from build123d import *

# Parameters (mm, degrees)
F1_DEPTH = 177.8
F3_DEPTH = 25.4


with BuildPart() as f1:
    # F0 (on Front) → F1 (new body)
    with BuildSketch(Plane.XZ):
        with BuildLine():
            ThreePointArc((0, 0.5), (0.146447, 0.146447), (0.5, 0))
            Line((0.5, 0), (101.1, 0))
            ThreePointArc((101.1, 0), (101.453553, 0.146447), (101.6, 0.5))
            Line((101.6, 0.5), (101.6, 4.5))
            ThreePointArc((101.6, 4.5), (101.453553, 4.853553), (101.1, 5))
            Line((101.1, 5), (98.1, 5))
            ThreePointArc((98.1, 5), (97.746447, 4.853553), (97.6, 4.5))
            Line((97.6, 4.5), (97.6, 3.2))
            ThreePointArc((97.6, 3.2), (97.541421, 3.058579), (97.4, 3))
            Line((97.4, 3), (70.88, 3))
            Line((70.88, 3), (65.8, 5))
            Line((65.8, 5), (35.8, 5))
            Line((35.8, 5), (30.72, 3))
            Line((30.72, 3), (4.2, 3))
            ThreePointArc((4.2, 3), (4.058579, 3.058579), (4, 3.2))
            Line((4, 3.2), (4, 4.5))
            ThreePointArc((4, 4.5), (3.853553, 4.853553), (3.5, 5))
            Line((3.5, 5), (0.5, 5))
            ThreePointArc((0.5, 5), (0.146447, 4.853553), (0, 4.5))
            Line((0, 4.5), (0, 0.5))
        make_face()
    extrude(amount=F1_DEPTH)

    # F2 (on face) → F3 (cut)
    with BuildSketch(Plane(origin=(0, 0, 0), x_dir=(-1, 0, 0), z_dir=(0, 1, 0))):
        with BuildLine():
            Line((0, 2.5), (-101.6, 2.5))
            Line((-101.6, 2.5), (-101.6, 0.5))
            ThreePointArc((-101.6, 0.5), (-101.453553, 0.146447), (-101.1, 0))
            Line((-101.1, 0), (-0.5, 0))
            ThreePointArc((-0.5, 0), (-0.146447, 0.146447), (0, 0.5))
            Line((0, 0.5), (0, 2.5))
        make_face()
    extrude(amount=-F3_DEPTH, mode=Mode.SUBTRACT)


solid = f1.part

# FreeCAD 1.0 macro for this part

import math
import FreeCAD as App
import Part
import Sketcher
from FreeCAD import Vector
Q = App.Units.Quantity

doc = App.newDocument("Part")
body = doc.addObject("PartDesign::Body", "Body")

sketch1 = body.newObject("Sketcher::SketchObject", "Sketch")
sketch1.AttachmentSupport = (doc.getObject("XZ_Plane"), [""])
sketch1.MapMode = "FlatFace"
sketch1.addGeometry([
    Part.ArcOfCircle(Part.Circle(Vector(0.5, 0.5, 0), Vector(0, 0, 1), 0.5), math.radians(-180), math.radians(-90)),
    Part.LineSegment(Vector(0.5, 0, 0), Vector(101.1, 0, 0)),
    Part.ArcOfCircle(Part.Circle(Vector(101.1, 0.5, 0), Vector(0, 0, 1), 0.5), math.radians(-90), math.radians(0)),
    Part.LineSegment(Vector(101.6, 0.5, 0), Vector(101.6, 4.5, 0)),
    Part.ArcOfCircle(Part.Circle(Vector(101.1, 4.5, 0), Vector(0, 0, 1), 0.5), math.radians(0), math.radians(90)),
    Part.LineSegment(Vector(101.1, 5, 0), Vector(98.1, 5, 0)),
    Part.ArcOfCircle(Part.Circle(Vector(98.1, 4.5, 0), Vector(0, 0, 1), 0.5), math.radians(90), math.radians(180)),
    Part.LineSegment(Vector(97.6, 4.5, 0), Vector(97.6, 3.2, 0)),
    Part.ArcOfCircle(Part.Circle(Vector(97.4, 3.2, 0), Vector(0, 0, 1), 0.2), math.radians(-90), math.radians(0)),
    Part.LineSegment(Vector(97.4, 3, 0), Vector(70.88, 3, 0)),
    Part.LineSegment(Vector(70.88, 3, 0), Vector(65.8, 5, 0)),
    Part.LineSegment(Vector(65.8, 5, 0), Vector(35.8, 5, 0)),
    Part.LineSegment(Vector(35.8, 5, 0), Vector(30.72, 3, 0)),
    Part.LineSegment(Vector(30.72, 3, 0), Vector(4.2, 3, 0)),
    Part.ArcOfCircle(Part.Circle(Vector(4.2, 3.2, 0), Vector(0, 0, 1), 0.2), math.radians(-180), math.radians(-90)),
    Part.LineSegment(Vector(4, 3.2, 0), Vector(4, 4.5, 0)),
    Part.ArcOfCircle(Part.Circle(Vector(3.5, 4.5, 0), Vector(0, 0, 1), 0.5), math.radians(0), math.radians(90)),
    Part.LineSegment(Vector(3.5, 5, 0), Vector(0.5, 5, 0)),
    Part.ArcOfCircle(Part.Circle(Vector(0.5, 4.5, 0), Vector(0, 0, 1), 0.5), math.radians(90), math.radians(180)),
    Part.LineSegment(Vector(0, 4.5, 0), Vector(0, 0.5, 0)),
], False)
sketch1.addConstraint([
    Sketcher.Constraint("Coincident", 0, 2, 1, 1),
    Sketcher.Constraint("Coincident", 1, 2, 2, 1),
    Sketcher.Constraint("Coincident", 2, 2, 3, 1),
    Sketcher.Constraint("Coincident", 3, 2, 4, 1),
    Sketcher.Constraint("Coincident", 4, 2, 5, 1),
    Sketcher.Constraint("Coincident", 5, 2, 6, 1),
    Sketcher.Constraint("Coincident", 6, 2, 7, 1),
    Sketcher.Constraint("Coincident", 7, 2, 8, 2),
    Sketcher.Constraint("Coincident", 8, 1, 9, 1),
    Sketcher.Constraint("Coincident", 9, 2, 10, 1),
    Sketcher.Constraint("Coincident", 10, 2, 11, 1),
    Sketcher.Constraint("Coincident", 11, 2, 12, 1),
    Sketcher.Constraint("Coincident", 12, 2, 13, 1),
    Sketcher.Constraint("Coincident", 13, 2, 14, 2),
    Sketcher.Constraint("Coincident", 14, 1, 15, 1),
    Sketcher.Constraint("Coincident", 15, 2, 16, 1),
    Sketcher.Constraint("Coincident", 16, 2, 17, 1),
    Sketcher.Constraint("Coincident", 17, 2, 18, 1),
    Sketcher.Constraint("Coincident", 18, 2, 19, 1),
    Sketcher.Constraint("Coincident", 19, 2, 0, 1),
    Sketcher.Constraint("Horizontal", 1),
    Sketcher.Constraint("Vertical", 3),
    Sketcher.Constraint("Horizontal", 5),
    Sketcher.Constraint("Vertical", 7),
    Sketcher.Constraint("Horizontal", 9),
    Sketcher.Constraint("Horizontal", 11),
    Sketcher.Constraint("Horizontal", 13),
    Sketcher.Constraint("Vertical", 15),
    Sketcher.Constraint("Horizontal", 17),
    Sketcher.Constraint("Vertical", 19),
    Sketcher.Constraint("Equal", 0, 2),
    Sketcher.Constraint("Equal", 2, 4),
    Sketcher.Constraint("Equal", 4, 6),
    Sketcher.Constraint("Equal", 8, 14),
    Sketcher.Constraint("Equal", 6, 16),
    Sketcher.Constraint("Equal", 16, 18),
    Sketcher.Constraint("PointOnObject", 0, 2, -1),
    Sketcher.Constraint("PointOnObject", 18, 2, -2),
    Sketcher.Constraint("Horizontal", 8, 3, 14, 3),
    Sketcher.Constraint("Horizontal", 6, 3, 16, 3),
    Sketcher.Constraint("Horizontal", 0, 3, 2, 2),
    Sketcher.Constraint("Horizontal", 18, 3, 3, 2),
    Sketcher.Constraint("Horizontal", 3, 2, 6, 2),
    Sketcher.Constraint("Horizontal", 14, 3, 7, 2),
    Sketcher.Constraint("Horizontal", 5, 2, 10, 2),
    Sketcher.Constraint("Horizontal", 7, 2, 14, 1),
    Sketcher.Constraint("Horizontal", 6, 2, 15, 2),
    Sketcher.Constraint("Horizontal", 15, 2, 18, 2),
    Sketcher.Constraint("Horizontal", 2, 2, 19, 2),
    Sketcher.Constraint("Vertical", 18, 3, 0, 2),
    Sketcher.Constraint("Vertical", 4, 3, 1, 2),
    Sketcher.Constraint("Vertical", 1, 2, 4, 2),
    Sketcher.Constraint("Vertical", 6, 3, 5, 2),
    Sketcher.Constraint("Vertical", 14, 3, 13, 2),
    Sketcher.Constraint("Vertical", 0, 2, 17, 2),
    Sketcher.Constraint("Equal", 9, 13),
    Sketcher.Constraint("Equal", 5, 17),
    Sketcher.Constraint("Equal", 10, 12),
    Sketcher.Constraint("Radius", 0, Q("0.500001 mm")),
    Sketcher.Constraint("Radius", 8, Q("0.200001 mm")),
    Sketcher.Constraint("DistanceX", 5, 2, 5, 1, Q("3 mm")),
    Sketcher.Constraint("DistanceX", 11, 2, 11, 1, Q("30 mm")),
    Sketcher.Constraint("DistanceY", 3, 1, 3, 2, Q("4 mm")),
    Sketcher.Constraint("DistanceX", 1, 1, 1, 2, Q("100.6 mm")),
    Sketcher.Constraint("DistanceY", 7, 2, 7, 1, Q("1.3 mm")),
    Sketcher.Constraint("DistanceX", -1, 1, 14, 1, Q("4 mm")),
    Sketcher.Constraint("DistanceX", 9, 2, 9, 1, Q("26.52 mm")),
    Sketcher.Constraint("DistanceX", -1, 1, 8, 1, Q("97.4 mm")),
])
pad1 = body.newObject("PartDesign::Pad", "Pad")
pad1.Profile = sketch1
pad1.Length = 177.8

sketch2 = body.newObject("Sketcher::SketchObject", "Sketch001")
sketch2.AttachmentSupport = (doc.getObject("XZ_Plane"), [""])
sketch2.MapMode = "FlatFace"
sketch2.addGeometry([
    Part.LineSegment(Vector(0, 2.5, 0), Vector(101.6, 2.5, 0)),
    Part.LineSegment(Vector(101.6, 2.5, 0), Vector(101.6, 0.5, 0)),
    Part.ArcOfCircle(Part.Circle(Vector(101.1, 0.5, 0), Vector(0, 0, 1), 0.5), math.radians(-90), math.radians(0)),
    Part.LineSegment(Vector(101.1, 0, 0), Vector(0.5, 0, 0)),
    Part.ArcOfCircle(Part.Circle(Vector(0.5, 0.5, 0), Vector(0, 0, 1), 0.5), math.radians(-180), math.radians(-90)),
    Part.LineSegment(Vector(0, 0.5, 0), Vector(0, 2.5, 0)),
], False)
sketch2.addConstraint([
    Sketcher.Constraint("Coincident", 0, 2, 1, 1),
    Sketcher.Constraint("Coincident", 1, 2, 2, 2),
    Sketcher.Constraint("Coincident", 2, 1, 3, 1),
    Sketcher.Constraint("Coincident", 3, 2, 4, 2),
    Sketcher.Constraint("Coincident", 4, 1, 5, 1),
    Sketcher.Constraint("Coincident", 5, 2, 0, 1),
    Sketcher.Constraint("Horizontal", 0),
    Sketcher.Constraint("Vertical", 1),
    Sketcher.Constraint("Horizontal", 3),
    Sketcher.Constraint("Vertical", 5),
    Sketcher.Constraint("Equal", 2, 4),
    Sketcher.Constraint("PointOnObject", 2, 1, -1),
    Sketcher.Constraint("PointOnObject", 4, 1, -2),
    Sketcher.Constraint("Horizontal", 4, 3, 1, 2),
    Sketcher.Constraint("Horizontal", 1, 2, 4, 1),
    Sketcher.Constraint("Vertical", 4, 3, 3, 2),
    Sketcher.Constraint("Radius", 2, Q("0.500001 mm")),
    Sketcher.Constraint("DistanceY", 1, 2, 1, 1, Q("2 mm")),
    Sketcher.Constraint("DistanceX", 0, 1, 0, 2, Q("101.6 mm")),
    Sketcher.Constraint("DistanceX", 3, 2, 3, 1, Q("100.6 mm")),
])
pocket1 = body.newObject("PartDesign::Pocket", "Pocket")
pocket1.Profile = sketch2
pocket1.Length = 25.4
pocket1.Reversed = True

doc.recompute()
